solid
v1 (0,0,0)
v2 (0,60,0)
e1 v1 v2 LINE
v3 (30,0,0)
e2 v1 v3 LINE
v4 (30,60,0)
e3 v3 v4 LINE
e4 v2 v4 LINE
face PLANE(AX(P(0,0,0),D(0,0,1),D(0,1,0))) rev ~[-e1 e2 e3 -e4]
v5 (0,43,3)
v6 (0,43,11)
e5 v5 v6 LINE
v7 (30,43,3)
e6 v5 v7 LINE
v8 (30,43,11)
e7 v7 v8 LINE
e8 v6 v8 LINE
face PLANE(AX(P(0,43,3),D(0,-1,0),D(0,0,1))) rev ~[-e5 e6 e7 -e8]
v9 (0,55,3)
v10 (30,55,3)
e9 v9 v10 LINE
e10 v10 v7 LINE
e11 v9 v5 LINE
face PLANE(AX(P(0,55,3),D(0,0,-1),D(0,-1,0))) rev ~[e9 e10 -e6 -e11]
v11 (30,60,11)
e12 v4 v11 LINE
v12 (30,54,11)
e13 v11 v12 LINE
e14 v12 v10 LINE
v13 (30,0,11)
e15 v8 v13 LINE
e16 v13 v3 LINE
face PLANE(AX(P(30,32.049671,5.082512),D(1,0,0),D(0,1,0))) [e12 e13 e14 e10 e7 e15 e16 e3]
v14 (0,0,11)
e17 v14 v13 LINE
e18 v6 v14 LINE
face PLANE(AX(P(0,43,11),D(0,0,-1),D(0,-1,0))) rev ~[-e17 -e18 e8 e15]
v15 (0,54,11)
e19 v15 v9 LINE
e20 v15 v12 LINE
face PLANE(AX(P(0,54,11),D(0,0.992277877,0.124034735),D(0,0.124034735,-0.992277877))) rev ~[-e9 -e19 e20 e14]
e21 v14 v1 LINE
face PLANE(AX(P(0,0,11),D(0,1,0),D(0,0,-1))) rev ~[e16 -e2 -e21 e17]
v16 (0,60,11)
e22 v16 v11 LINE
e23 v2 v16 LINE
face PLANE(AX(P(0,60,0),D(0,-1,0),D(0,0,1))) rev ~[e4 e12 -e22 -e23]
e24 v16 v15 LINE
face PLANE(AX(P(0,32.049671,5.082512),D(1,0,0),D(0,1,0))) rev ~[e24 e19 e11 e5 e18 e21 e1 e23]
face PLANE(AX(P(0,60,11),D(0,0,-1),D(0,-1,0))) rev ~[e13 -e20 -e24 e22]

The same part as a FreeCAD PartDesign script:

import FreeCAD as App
import Part
import Sketcher
from FreeCAD import Vector
Q = App.Units.Quantity

doc = App.newDocument("Part")
body = doc.addObject("PartDesign::Body", "Body")

sketch1 = body.newObject("Sketcher::SketchObject", "Sketch")
sketch1.AttachmentSupport = (doc.getObject("YZ_Plane"), [""])
sketch1.MapMode = "FlatFace"
sketch1.addGeometry(Part.LineSegment(Vector(0, 0, 0), Vector(60, 0, 0)), False)
sketch1.addGeometry(Part.LineSegment(Vector(60, 0, 0), Vector(60, 11, 0)), False)
sketch1.addGeometry(Part.LineSegment(Vector(60, 11, 0), Vector(54, 11, 0)), False)
sketch1.addGeometry(Part.LineSegment(Vector(54, 11, 0), Vector(55, 3, 0)), False)
sketch1.addGeometry(Part.LineSegment(Vector(55, 3, 0), Vector(43, 3, 0)), False)
sketch1.addGeometry(Part.LineSegment(Vector(43, 3, 0), Vector(43, 11, 0)), False)
sketch1.addGeometry(Part.LineSegment(Vector(43, 11, 0), Vector(0, 11, 0)), False)
sketch1.addGeometry(Part.LineSegment(Vector(0, 11, 0), Vector(0, 0, 0)), False)
sketch1.addConstraint(Sketcher.Constraint("Coincident", 0, 2, 1, 1))
sketch1.addConstraint(Sketcher.Constraint("Coincident", 1, 2, 2, 1))
sketch1.addConstraint(Sketcher.Constraint("Coincident", 2, 2, 3, 1))
sketch1.addConstraint(Sketcher.Constraint("Coincident", 3, 2, 4, 1))
sketch1.addConstraint(Sketcher.Constraint("Coincident", 4, 2, 5, 1))
sketch1.addConstraint(Sketcher.Constraint("Coincident", 5, 2, 6, 1))
sketch1.addConstraint(Sketcher.Constraint("Coincident", 6, 2, 7, 1))
sketch1.addConstraint(Sketcher.Constraint("Coincident", 7, 2, 0, 1))
sketch1.addConstraint(Sketcher.Constraint("Horizontal", 0))
sketch1.addConstraint(Sketcher.Constraint("Vertical", 1))
sketch1.addConstraint(Sketcher.Constraint("Horizontal", 2))
sketch1.addConstraint(Sketcher.Constraint("Horizontal", 4))
sketch1.addConstraint(Sketcher.Constraint("Vertical", 5))
sketch1.addConstraint(Sketcher.Constraint("Horizontal", 6))
sketch1.addConstraint(Sketcher.Constraint("Vertical", 7))
sketch1.addConstraint(Sketcher.Constraint("Coincident", 7, 2, -1, 1))
sketch1.addConstraint(Sketcher.Constraint("Horizontal", 2, 2, 5, 2))
sketch1.addConstraint(Sketcher.Constraint("DistanceX", 0, 1, 0, 2, Q("60 mm")))
sketch1.addConstraint(Sketcher.Constraint("DistanceX", 2, 2, 2, 1, Q("6 mm")))
sketch1.addConstraint(Sketcher.Constraint("DistanceX", 4, 2, 4, 1, Q("12 mm")))
sketch1.addConstraint(Sketcher.Constraint("DistanceX", 6, 2, 6, 1, Q("43 mm")))
sketch1.addConstraint(Sketcher.Constraint("DistanceY", 1, 1, 1, 2, Q("11 mm")))
sketch1.addConstraint(Sketcher.Constraint("DistanceY", 5, 1, 5, 2, Q("8 mm")))
pad1 = body.newObject("PartDesign::Pad", "Pad")
pad1.Profile = sketch1
pad1.Length = 30

doc.recompute()
